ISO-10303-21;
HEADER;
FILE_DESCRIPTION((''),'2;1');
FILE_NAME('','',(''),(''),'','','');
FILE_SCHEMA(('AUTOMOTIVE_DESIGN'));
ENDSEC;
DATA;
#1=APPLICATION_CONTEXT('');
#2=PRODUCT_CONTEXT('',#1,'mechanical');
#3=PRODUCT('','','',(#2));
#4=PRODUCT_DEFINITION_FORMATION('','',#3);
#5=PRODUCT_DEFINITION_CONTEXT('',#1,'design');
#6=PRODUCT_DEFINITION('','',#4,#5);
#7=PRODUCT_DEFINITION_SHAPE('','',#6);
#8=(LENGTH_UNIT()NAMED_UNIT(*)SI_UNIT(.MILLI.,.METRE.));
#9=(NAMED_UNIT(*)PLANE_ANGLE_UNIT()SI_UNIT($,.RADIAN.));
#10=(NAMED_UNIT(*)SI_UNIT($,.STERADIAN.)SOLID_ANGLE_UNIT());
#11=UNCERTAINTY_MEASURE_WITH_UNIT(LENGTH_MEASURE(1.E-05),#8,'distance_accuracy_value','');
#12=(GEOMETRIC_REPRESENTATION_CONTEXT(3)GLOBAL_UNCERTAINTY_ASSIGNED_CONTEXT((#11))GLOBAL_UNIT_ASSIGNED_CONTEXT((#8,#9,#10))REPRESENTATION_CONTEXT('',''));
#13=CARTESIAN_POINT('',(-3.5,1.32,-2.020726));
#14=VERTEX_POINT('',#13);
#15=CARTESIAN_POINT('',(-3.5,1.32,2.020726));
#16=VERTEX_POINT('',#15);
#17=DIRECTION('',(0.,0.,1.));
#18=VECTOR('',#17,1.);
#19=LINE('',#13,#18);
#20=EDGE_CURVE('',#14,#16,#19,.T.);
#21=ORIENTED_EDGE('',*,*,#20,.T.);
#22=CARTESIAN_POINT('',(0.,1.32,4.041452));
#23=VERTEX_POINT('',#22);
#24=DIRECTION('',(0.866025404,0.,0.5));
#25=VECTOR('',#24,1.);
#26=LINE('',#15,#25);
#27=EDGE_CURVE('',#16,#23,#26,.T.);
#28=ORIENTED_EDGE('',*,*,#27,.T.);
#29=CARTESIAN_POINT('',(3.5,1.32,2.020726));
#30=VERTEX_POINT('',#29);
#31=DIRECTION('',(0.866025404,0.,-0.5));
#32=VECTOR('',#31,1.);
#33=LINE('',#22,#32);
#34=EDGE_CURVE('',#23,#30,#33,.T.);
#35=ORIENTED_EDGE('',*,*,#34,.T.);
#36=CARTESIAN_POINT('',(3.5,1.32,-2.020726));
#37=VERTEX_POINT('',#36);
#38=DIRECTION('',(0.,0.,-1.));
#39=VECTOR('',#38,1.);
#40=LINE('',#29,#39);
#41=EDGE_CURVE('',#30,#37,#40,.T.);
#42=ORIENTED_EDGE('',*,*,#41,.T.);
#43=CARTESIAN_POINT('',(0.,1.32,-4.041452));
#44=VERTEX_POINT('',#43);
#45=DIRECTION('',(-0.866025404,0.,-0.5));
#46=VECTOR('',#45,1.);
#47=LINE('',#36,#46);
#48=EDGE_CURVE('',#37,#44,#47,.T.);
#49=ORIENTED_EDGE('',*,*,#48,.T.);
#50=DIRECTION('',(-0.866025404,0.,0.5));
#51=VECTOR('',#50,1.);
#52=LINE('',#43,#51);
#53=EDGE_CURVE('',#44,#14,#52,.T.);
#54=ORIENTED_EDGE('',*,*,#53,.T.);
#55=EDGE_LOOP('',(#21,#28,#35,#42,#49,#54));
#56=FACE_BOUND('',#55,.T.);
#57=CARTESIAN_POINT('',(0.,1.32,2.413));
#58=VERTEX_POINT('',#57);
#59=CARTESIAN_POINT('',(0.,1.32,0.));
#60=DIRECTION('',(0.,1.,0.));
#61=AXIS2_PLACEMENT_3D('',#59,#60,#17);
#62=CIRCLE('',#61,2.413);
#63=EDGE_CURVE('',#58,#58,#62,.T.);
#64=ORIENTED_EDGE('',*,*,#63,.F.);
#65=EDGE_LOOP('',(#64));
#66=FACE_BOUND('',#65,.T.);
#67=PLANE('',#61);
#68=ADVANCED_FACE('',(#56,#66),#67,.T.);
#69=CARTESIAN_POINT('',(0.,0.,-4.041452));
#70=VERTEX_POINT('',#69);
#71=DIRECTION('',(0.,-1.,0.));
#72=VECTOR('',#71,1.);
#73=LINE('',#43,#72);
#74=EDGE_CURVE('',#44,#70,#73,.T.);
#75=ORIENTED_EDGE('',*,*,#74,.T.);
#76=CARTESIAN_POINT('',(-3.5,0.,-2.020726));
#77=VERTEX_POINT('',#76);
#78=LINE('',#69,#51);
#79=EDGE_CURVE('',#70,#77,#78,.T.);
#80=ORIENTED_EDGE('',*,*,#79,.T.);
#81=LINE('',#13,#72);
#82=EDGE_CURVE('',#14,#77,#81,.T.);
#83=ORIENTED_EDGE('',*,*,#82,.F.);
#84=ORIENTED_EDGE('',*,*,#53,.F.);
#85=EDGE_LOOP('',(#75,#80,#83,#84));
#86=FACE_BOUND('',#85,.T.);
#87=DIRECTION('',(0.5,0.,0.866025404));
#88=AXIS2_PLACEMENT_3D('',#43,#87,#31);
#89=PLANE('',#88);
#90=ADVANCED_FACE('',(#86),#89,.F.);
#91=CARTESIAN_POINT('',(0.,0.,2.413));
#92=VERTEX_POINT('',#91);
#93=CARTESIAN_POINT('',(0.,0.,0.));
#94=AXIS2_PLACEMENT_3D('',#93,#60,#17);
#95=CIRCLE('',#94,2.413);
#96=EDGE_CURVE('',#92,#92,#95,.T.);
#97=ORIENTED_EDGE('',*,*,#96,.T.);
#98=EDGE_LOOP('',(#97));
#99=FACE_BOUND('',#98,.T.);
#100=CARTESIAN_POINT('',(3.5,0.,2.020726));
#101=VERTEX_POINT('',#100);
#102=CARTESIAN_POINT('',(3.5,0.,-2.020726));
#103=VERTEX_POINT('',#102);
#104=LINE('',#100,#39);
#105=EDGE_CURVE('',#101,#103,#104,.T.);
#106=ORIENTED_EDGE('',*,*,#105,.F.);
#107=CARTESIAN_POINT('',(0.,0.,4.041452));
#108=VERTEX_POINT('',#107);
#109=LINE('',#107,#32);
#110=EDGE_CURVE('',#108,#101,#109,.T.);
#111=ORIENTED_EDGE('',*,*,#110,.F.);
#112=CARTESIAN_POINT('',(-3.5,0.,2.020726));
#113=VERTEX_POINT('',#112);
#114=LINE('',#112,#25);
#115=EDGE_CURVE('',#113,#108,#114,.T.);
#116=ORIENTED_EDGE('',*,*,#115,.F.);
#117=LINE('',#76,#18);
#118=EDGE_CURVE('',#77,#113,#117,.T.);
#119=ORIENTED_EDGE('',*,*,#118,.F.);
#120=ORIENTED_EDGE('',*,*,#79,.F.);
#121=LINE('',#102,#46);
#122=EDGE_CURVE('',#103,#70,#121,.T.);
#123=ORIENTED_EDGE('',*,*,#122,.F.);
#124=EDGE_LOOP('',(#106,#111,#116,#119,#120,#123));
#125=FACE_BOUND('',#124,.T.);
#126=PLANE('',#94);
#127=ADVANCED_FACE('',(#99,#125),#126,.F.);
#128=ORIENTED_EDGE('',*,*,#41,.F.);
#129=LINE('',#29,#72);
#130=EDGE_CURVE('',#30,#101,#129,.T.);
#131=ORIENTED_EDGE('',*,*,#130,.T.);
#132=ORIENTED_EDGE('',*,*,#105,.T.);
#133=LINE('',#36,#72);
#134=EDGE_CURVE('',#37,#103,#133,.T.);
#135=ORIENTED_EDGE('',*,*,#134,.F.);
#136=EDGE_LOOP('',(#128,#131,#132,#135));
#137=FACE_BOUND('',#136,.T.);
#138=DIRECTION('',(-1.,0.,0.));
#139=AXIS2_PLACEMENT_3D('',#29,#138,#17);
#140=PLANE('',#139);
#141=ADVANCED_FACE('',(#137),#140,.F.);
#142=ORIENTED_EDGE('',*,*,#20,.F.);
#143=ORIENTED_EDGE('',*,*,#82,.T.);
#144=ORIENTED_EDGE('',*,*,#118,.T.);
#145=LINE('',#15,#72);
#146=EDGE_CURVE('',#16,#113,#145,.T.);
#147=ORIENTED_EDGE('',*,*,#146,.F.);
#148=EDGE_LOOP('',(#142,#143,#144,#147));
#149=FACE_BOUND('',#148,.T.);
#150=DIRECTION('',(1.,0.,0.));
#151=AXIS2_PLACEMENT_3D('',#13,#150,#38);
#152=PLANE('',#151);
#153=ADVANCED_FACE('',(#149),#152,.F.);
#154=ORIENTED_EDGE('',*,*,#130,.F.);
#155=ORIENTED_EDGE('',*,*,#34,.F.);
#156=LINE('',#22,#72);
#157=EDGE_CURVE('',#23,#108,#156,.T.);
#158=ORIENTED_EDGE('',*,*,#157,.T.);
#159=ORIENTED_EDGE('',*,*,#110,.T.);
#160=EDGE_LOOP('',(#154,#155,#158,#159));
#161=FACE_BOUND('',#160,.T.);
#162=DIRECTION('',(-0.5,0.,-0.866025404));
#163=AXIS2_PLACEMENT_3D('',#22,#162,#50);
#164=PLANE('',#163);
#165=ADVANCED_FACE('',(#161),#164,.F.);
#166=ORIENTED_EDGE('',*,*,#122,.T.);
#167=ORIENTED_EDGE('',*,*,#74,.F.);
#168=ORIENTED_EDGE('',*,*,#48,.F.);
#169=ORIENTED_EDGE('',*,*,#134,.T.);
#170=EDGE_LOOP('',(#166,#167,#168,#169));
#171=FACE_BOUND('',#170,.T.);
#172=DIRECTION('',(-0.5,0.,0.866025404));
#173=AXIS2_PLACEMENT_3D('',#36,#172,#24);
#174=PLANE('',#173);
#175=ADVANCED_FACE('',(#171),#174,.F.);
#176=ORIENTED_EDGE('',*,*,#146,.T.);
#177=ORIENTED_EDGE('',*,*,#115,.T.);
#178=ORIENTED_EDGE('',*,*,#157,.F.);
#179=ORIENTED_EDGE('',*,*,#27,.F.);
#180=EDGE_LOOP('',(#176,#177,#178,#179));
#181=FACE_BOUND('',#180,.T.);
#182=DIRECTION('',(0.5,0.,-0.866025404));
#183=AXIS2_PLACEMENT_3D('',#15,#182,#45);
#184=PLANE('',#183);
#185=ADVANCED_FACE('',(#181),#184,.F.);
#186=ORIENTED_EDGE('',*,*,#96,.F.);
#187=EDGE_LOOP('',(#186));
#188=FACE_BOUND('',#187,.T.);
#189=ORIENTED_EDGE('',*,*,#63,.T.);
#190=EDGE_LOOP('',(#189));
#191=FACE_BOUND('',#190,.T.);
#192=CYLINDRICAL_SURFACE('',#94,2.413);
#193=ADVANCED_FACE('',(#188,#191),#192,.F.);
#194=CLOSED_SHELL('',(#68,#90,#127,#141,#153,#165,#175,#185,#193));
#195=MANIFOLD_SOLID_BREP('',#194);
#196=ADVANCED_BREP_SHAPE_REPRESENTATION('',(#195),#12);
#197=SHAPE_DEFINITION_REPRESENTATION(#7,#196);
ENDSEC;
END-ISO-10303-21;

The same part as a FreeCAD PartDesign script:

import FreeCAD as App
import Part
import Sketcher
from FreeCAD import Vector
Q = App.Units.Quantity


def add_polygon(sketch, points):
    """Adds a closed chain of lines whose ends are joined by coincident constraints."""
    first, n = sketch.GeometryCount, len(points)
    for a, b in zip(points, points[1:] + points[:1]):
        sketch.addGeometry(Part.LineSegment(App.Vector(*a, 0), App.Vector(*b, 0)), False)
    for i in range(n):
        sketch.addConstraint(Sketcher.Constraint("Coincident", first + i, 2, first + (i + 1) % n, 1))

doc = App.newDocument("Part")
body = doc.addObject("PartDesign::Body", "Body")

sketch1 = body.newObject("Sketcher::SketchObject", "Sketch")
sketch1.AttachmentSupport = (doc.getObject("XZ_Plane"), [""])
sketch1.MapMode = "FlatFace"
add_polygon(sketch1, [(-3.5, -2.020726), (-3.5, 2.020726), (0, 4.041452), (3.5, 2.020726), (3.5, -2.020726), (0, -4.041452)])
sketch1.addConstraint([
    Sketcher.Constraint("Vertical", 0),
    Sketcher.Constraint("Vertical", 3),
    Sketcher.Constraint("Symmetric", 0, 2, 3, 2, -1, 1),
    Sketcher.Constraint("Symmetric", 1, 2, 4, 2, -1, 1),
    Sketcher.Constraint("PointOnObject", 1, 2, -2),
    Sketcher.Constraint("Parallel", 2, 5),
    Sketcher.Constraint("Horizontal", 0, 2, 2, 2),
    Sketcher.Constraint("Angle", 1, Q("30 deg")),
    Sketcher.Constraint("DistanceY", 0, 1, 0, 2, Q("4.041452 mm")),
    Sketcher.Constraint("DistanceX", 0, 2, -1, 1, Q("3.5 mm")),
])
pad1 = body.newObject("PartDesign::Pad", "Pad")
pad1.Profile = sketch1
pad1.Length = 1.32
pad1.Reversed = True

sketch2 = body.newObject("Sketcher::SketchObject", "Sketch001")
sketch2.AttachmentSupport = (doc.getObject("XZ_Plane"), [""])
sketch2.MapMode = "FlatFace"
sketch2.AttachmentOffset = App.Placement(Vector(0, 0, -1.32), App.Rotation())
sketch2.addGeometry(Part.Circle(Vector(0, 0, 0), Vector(0, 0, 1), 2.413), False)
sketch2.addConstraint([
    Sketcher.Constraint("Coincident", 0, 3, -1, 1),
    Sketcher.Constraint("Diameter", 0, Q("0.19 in")),
])
pocket1 = body.newObject("PartDesign::Pocket", "Pocket")
pocket1.Profile = sketch2
pocket1.Type = "ThroughAll"
pocket1.Reversed = True

doc.recompute()
